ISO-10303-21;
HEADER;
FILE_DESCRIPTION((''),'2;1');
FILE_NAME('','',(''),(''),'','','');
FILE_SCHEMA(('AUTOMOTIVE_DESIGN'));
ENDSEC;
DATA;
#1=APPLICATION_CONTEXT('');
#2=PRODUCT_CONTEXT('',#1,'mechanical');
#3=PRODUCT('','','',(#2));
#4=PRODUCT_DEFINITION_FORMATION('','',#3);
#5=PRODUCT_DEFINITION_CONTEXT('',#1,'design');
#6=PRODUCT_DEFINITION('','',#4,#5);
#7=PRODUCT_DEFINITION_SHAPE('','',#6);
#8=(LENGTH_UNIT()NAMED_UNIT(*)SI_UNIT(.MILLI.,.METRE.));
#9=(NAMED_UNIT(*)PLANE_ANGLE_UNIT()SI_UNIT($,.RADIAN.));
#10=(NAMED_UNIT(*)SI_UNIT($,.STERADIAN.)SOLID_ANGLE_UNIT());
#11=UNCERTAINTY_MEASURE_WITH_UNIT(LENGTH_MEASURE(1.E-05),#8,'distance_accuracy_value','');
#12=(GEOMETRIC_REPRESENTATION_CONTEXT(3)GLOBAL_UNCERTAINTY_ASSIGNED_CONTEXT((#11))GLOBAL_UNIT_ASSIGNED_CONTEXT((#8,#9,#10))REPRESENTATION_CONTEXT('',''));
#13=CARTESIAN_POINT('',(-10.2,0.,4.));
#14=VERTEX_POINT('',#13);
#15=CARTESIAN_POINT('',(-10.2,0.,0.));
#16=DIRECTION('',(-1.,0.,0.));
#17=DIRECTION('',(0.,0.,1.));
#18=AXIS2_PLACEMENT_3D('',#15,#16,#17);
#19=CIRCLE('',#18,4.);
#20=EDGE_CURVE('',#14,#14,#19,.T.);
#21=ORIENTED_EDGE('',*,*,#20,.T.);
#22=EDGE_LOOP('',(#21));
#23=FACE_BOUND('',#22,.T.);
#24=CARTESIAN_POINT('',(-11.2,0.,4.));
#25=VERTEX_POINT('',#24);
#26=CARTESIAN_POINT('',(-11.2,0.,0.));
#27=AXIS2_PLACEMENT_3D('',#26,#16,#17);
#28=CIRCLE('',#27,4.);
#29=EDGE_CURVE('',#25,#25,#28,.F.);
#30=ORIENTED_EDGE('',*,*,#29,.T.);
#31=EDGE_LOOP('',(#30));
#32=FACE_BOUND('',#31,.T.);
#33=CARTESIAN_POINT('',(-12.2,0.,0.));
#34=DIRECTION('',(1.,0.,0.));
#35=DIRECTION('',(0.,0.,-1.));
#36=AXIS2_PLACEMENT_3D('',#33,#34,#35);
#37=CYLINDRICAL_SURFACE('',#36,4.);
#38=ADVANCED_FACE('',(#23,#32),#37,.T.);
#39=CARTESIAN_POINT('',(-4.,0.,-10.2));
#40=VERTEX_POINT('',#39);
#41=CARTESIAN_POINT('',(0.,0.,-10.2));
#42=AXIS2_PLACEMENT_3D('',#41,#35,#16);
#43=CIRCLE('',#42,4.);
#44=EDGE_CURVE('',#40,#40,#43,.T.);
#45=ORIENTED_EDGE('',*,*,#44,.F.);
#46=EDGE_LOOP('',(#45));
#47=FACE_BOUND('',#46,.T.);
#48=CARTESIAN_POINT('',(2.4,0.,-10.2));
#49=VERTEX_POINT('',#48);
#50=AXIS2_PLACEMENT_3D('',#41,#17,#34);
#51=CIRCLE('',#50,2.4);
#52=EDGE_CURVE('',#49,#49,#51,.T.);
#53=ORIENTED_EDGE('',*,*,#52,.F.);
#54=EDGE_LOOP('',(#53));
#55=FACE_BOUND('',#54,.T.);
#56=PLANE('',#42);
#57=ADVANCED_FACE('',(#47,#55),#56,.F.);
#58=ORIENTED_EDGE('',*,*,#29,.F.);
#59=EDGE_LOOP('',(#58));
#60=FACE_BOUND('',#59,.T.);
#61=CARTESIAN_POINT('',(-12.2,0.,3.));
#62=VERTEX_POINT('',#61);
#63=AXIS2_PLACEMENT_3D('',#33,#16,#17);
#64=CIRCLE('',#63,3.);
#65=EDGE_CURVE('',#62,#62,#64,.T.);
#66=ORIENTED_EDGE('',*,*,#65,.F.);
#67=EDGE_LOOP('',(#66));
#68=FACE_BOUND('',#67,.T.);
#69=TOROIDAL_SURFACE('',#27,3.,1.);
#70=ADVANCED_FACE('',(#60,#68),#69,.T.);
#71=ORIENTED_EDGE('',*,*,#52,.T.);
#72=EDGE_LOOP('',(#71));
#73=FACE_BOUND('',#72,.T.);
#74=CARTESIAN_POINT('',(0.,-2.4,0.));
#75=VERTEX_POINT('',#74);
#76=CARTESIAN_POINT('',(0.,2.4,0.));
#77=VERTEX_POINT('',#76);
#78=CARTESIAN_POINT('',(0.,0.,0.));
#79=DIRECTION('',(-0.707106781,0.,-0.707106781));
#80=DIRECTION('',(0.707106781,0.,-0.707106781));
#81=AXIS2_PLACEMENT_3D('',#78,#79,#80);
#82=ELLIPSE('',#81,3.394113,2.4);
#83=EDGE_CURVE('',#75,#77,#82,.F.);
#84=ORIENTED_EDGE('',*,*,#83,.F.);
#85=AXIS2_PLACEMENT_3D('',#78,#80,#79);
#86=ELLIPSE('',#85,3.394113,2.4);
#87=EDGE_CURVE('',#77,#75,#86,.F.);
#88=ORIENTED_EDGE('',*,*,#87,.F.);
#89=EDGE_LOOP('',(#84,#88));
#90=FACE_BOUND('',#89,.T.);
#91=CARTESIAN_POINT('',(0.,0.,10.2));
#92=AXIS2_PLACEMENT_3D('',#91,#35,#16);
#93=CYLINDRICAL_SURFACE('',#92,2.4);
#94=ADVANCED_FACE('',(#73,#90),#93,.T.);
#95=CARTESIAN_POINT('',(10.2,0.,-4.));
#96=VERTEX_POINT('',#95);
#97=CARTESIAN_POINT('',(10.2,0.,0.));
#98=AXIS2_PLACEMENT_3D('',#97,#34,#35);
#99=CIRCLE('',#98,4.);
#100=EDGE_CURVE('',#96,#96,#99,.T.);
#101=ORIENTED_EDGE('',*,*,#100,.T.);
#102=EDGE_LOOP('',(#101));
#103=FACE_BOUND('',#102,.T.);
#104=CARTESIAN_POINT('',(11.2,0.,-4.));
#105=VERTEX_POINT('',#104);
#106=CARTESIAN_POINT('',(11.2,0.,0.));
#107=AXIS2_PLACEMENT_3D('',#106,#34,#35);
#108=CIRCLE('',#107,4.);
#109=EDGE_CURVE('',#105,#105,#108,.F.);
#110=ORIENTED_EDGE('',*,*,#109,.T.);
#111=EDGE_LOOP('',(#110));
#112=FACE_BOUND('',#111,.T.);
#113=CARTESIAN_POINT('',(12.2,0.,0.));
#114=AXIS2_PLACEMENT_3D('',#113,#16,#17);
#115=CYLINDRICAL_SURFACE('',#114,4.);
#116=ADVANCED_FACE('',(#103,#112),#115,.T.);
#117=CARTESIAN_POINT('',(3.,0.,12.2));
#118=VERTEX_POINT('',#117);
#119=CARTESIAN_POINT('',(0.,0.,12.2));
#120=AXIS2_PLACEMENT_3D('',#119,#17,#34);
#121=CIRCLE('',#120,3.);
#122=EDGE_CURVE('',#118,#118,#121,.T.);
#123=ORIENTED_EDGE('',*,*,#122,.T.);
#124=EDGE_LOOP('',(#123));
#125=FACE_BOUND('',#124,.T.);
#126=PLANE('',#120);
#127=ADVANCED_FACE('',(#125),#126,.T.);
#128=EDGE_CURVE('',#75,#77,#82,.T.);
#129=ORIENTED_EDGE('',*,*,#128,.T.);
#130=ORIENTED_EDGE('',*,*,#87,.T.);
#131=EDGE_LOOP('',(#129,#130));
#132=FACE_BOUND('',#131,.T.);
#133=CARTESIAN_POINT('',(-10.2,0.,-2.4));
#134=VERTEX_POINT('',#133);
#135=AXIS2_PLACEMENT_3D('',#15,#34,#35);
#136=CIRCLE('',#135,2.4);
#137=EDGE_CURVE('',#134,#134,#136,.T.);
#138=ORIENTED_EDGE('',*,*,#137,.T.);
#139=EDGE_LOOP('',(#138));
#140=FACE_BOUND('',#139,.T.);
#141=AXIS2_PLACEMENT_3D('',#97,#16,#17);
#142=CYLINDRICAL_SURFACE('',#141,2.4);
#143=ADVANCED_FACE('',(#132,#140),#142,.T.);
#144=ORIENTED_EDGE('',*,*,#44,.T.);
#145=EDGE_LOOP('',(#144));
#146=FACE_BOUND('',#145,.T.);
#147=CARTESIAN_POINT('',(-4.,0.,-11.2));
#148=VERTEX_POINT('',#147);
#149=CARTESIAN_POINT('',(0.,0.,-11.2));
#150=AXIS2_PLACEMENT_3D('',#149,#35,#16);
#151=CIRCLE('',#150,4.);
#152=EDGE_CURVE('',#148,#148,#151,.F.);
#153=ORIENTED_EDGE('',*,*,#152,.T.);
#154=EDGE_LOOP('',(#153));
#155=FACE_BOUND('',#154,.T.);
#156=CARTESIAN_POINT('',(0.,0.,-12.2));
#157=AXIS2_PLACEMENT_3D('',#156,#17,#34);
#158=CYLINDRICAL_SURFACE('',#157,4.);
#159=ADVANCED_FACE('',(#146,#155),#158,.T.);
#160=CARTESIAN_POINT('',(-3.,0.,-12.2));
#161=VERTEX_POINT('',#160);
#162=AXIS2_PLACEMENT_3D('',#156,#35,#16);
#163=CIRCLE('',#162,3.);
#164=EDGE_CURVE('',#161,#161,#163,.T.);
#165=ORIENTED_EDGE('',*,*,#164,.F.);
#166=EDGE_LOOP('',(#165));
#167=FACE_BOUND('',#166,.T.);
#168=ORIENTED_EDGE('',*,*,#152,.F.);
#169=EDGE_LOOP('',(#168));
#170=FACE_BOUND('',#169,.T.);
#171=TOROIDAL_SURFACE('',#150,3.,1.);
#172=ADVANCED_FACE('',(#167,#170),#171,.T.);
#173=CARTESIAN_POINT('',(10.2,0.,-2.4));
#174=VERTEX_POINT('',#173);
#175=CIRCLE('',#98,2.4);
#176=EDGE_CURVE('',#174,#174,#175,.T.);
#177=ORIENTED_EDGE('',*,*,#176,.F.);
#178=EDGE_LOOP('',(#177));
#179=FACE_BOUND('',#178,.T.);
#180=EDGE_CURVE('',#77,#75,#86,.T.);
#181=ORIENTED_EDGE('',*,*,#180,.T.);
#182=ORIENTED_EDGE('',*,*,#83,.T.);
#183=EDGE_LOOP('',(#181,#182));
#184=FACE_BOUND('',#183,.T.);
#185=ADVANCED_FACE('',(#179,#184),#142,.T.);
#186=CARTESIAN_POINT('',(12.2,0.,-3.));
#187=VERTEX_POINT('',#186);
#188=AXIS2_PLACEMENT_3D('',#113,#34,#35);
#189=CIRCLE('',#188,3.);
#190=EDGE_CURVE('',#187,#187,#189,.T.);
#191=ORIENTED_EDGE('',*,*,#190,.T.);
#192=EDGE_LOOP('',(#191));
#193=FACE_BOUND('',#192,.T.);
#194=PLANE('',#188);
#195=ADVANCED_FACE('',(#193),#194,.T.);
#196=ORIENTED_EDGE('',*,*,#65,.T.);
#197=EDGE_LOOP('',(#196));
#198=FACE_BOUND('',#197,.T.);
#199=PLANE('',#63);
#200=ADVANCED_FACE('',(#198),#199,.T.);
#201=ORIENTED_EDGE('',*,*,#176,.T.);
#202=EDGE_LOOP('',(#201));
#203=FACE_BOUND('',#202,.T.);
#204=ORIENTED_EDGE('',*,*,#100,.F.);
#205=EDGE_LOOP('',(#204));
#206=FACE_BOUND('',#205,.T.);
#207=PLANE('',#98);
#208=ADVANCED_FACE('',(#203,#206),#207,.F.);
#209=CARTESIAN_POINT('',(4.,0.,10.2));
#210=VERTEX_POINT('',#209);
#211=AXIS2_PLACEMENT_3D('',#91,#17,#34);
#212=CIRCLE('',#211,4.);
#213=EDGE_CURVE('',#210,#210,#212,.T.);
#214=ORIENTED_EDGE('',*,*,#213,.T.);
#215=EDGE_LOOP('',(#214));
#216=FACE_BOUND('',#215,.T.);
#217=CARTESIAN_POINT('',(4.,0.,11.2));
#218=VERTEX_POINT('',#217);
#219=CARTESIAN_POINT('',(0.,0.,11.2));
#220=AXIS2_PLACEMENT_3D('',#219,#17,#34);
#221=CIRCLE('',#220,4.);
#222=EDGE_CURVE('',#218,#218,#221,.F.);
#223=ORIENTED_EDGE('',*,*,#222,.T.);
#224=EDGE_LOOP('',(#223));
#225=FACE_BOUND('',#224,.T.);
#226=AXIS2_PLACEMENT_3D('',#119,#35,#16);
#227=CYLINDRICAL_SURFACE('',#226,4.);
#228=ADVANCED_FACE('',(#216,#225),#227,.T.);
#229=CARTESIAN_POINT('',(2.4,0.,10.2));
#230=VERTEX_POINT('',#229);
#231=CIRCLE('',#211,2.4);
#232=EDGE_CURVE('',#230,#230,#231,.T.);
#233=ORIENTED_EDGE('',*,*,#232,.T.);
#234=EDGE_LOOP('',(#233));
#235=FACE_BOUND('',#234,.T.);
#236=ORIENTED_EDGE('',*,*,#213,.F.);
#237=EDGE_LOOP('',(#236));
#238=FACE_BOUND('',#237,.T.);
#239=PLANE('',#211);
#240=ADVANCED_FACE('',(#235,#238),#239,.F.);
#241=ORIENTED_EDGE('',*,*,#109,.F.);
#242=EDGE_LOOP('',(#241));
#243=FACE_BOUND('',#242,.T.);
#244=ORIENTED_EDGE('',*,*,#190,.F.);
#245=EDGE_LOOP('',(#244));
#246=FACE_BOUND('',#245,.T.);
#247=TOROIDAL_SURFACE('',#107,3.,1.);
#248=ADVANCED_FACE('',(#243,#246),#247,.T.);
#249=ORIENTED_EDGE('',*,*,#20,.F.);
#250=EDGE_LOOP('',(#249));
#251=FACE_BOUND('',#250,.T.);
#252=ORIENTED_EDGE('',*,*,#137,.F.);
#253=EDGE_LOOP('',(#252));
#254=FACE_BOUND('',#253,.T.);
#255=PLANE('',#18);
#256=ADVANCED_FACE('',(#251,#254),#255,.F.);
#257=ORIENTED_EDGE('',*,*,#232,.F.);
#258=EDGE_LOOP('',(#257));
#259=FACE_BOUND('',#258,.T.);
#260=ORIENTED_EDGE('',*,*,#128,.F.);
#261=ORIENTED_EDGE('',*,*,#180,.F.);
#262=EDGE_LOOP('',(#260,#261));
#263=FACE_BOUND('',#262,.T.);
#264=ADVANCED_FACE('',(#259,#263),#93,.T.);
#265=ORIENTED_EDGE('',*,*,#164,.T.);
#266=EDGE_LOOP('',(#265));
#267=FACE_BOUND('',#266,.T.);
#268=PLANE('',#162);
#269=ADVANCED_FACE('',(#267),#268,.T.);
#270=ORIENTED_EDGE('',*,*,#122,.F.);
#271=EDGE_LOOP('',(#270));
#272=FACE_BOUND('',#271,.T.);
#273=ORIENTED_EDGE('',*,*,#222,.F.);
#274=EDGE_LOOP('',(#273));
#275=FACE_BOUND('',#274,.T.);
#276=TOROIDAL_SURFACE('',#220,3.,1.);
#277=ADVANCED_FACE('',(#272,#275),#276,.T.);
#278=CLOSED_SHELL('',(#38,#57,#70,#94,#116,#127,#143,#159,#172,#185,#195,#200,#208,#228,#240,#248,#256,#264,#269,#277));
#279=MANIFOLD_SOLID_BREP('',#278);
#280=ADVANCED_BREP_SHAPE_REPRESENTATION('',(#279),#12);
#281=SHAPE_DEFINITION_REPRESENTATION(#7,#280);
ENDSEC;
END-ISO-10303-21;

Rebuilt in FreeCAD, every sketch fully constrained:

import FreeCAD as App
import Part
import Sketcher


def edges_at(feature, points):
    """Names of the edges that pass closest to the given points."""
    edges = feature.Shape.Edges
    near = lambda p: min(range(len(edges)), key=lambda i: edges[i].distToShape(Part.Vertex(*p))[0])
    return sorted({f"Edge{near(p) + 1}" for p in points})

doc = App.newDocument("Part")
body = doc.addObject("PartDesign::Body", "Body")

# Sketch on XY plane
sketch1 = body.newObject("Sketcher::SketchObject", "Sketch")
sketch1.AttachmentSupport = (doc.getObject("XY_Plane"), [""])
sketch1.MapMode = "FlatFace"
sketch1.addGeometry(Part.Circle(App.Vector(0, 0, 0), App.Vector(0, 0, 1), 2.4), False)
sketch1.addConstraint(Sketcher.Constraint("Coincident", 0, 3, -1, 1))
sketch1.addConstraint(Sketcher.Constraint("Diameter", 0, 4.8))
pad1 = body.newObject("PartDesign::Pad", "Pad")
pad1.Profile = sketch1
pad1.Length = 20.4
pad1.Midplane = True

# Sketch on YZ plane
sketch2 = body.newObject("Sketcher::SketchObject", "Sketch001")
sketch2.AttachmentSupport = (doc.getObject("YZ_Plane"), [""])
sketch2.MapMode = "FlatFace"
sketch2.addGeometry(Part.Circle(App.Vector(0, 0, 0), App.Vector(0, 0, 1), 2.4), False)
sketch2.addConstraint(Sketcher.Constraint("Coincident", 0, 3, -1, 1))
sketch2.addConstraint(Sketcher.Constraint("Diameter", 0, 4.8))
pad2 = body.newObject("PartDesign::Pad", "Pad001")
pad2.Profile = sketch2
pad2.Length = 20.4
pad2.Midplane = True

# Sketch on YZ plane
sketch3 = body.newObject("Sketcher::SketchObject", "Sketch002")
sketch3.AttachmentSupport = (doc.getObject("YZ_Plane"), [""])
sketch3.MapMode = "FlatFace"
sketch3.AttachmentOffset = App.Placement(App.Vector(0, 0, 10.2), App.Rotation())
sketch3.addGeometry(Part.Circle(App.Vector(0, 0, 0), App.Vector(0, 0, 1), 4), False)
sketch3.addConstraint(Sketcher.Constraint("Coincident", 0, 3, -1, 1))
sketch3.addConstraint(Sketcher.Constraint("Diameter", 0, 8.0))
pad3 = body.newObject("PartDesign::Pad", "Pad002")
pad3.Profile = sketch3
pad3.Length = 2

# Sketch on YZ plane
sketch4 = body.newObject("Sketcher::SketchObject", "Sketch003")
sketch4.AttachmentSupport = (doc.getObject("YZ_Plane"), [""])
sketch4.MapMode = "FlatFace"
sketch4.AttachmentOffset = App.Placement(App.Vector(0, 0, -10.2), App.Rotation())
sketch4.addGeometry(Part.Circle(App.Vector(0, 0, 0), App.Vector(0, 0, 1), 4), False)
sketch4.addConstraint(Sketcher.Constraint("Coincident", 0, 3, -1, 1))
sketch4.addConstraint(Sketcher.Constraint("Diameter", 0, 8.0))
pad4 = body.newObject("PartDesign::Pad", "Pad003")
pad4.Profile = sketch4
pad4.Length = 2
pad4.Reversed = True

# Sketch on XY plane
sketch5 = body.newObject("Sketcher::SketchObject", "Sketch004")
sketch5.AttachmentSupport = (doc.getObject("XY_Plane"), [""])
sketch5.MapMode = "FlatFace"
sketch5.AttachmentOffset = App.Placement(App.Vector(0, 0, 10.2), App.Rotation())
sketch5.addGeometry(Part.Circle(App.Vector(0, 0, 0), App.Vector(0, 0, 1), 4), False)
sketch5.addConstraint(Sketcher.Constraint("Coincident", 0, 3, -1, 1))
sketch5.addConstraint(Sketcher.Constraint("Diameter", 0, 8.0))
pad5 = body.newObject("PartDesign::Pad", "Pad004")
pad5.Profile = sketch5
pad5.Length = 2

# Sketch on XY plane
sketch6 = body.newObject("Sketcher::SketchObject", "Sketch005")
sketch6.AttachmentSupport = (doc.getObject("XY_Plane"), [""])
sketch6.MapMode = "FlatFace"
sketch6.AttachmentOffset = App.Placement(App.Vector(0, 0, -10.2), App.Rotation())
sketch6.addGeometry(Part.Circle(App.Vector(0, 0, 0), App.Vector(0, 0, 1), 4), False)
sketch6.addConstraint(Sketcher.Constraint("Coincident", 0, 3, -1, 1))
sketch6.addConstraint(Sketcher.Constraint("Diameter", 0, 8.0))
pad6 = body.newObject("PartDesign::Pad", "Pad005")
pad6.Profile = sketch6
pad6.Length = 2
pad6.Reversed = True
doc.recompute()

fillet = body.newObject("PartDesign::Fillet", "Fillet")
fillet.Base = (pad6, edges_at(pad6, [
    (12.2, 0, 4),
    (-12.2, 0, 4),
    (-4, 0, 12.2),
    (-4, 0, -12.2),
]))
fillet.Radius = 1

doc.recompute()
